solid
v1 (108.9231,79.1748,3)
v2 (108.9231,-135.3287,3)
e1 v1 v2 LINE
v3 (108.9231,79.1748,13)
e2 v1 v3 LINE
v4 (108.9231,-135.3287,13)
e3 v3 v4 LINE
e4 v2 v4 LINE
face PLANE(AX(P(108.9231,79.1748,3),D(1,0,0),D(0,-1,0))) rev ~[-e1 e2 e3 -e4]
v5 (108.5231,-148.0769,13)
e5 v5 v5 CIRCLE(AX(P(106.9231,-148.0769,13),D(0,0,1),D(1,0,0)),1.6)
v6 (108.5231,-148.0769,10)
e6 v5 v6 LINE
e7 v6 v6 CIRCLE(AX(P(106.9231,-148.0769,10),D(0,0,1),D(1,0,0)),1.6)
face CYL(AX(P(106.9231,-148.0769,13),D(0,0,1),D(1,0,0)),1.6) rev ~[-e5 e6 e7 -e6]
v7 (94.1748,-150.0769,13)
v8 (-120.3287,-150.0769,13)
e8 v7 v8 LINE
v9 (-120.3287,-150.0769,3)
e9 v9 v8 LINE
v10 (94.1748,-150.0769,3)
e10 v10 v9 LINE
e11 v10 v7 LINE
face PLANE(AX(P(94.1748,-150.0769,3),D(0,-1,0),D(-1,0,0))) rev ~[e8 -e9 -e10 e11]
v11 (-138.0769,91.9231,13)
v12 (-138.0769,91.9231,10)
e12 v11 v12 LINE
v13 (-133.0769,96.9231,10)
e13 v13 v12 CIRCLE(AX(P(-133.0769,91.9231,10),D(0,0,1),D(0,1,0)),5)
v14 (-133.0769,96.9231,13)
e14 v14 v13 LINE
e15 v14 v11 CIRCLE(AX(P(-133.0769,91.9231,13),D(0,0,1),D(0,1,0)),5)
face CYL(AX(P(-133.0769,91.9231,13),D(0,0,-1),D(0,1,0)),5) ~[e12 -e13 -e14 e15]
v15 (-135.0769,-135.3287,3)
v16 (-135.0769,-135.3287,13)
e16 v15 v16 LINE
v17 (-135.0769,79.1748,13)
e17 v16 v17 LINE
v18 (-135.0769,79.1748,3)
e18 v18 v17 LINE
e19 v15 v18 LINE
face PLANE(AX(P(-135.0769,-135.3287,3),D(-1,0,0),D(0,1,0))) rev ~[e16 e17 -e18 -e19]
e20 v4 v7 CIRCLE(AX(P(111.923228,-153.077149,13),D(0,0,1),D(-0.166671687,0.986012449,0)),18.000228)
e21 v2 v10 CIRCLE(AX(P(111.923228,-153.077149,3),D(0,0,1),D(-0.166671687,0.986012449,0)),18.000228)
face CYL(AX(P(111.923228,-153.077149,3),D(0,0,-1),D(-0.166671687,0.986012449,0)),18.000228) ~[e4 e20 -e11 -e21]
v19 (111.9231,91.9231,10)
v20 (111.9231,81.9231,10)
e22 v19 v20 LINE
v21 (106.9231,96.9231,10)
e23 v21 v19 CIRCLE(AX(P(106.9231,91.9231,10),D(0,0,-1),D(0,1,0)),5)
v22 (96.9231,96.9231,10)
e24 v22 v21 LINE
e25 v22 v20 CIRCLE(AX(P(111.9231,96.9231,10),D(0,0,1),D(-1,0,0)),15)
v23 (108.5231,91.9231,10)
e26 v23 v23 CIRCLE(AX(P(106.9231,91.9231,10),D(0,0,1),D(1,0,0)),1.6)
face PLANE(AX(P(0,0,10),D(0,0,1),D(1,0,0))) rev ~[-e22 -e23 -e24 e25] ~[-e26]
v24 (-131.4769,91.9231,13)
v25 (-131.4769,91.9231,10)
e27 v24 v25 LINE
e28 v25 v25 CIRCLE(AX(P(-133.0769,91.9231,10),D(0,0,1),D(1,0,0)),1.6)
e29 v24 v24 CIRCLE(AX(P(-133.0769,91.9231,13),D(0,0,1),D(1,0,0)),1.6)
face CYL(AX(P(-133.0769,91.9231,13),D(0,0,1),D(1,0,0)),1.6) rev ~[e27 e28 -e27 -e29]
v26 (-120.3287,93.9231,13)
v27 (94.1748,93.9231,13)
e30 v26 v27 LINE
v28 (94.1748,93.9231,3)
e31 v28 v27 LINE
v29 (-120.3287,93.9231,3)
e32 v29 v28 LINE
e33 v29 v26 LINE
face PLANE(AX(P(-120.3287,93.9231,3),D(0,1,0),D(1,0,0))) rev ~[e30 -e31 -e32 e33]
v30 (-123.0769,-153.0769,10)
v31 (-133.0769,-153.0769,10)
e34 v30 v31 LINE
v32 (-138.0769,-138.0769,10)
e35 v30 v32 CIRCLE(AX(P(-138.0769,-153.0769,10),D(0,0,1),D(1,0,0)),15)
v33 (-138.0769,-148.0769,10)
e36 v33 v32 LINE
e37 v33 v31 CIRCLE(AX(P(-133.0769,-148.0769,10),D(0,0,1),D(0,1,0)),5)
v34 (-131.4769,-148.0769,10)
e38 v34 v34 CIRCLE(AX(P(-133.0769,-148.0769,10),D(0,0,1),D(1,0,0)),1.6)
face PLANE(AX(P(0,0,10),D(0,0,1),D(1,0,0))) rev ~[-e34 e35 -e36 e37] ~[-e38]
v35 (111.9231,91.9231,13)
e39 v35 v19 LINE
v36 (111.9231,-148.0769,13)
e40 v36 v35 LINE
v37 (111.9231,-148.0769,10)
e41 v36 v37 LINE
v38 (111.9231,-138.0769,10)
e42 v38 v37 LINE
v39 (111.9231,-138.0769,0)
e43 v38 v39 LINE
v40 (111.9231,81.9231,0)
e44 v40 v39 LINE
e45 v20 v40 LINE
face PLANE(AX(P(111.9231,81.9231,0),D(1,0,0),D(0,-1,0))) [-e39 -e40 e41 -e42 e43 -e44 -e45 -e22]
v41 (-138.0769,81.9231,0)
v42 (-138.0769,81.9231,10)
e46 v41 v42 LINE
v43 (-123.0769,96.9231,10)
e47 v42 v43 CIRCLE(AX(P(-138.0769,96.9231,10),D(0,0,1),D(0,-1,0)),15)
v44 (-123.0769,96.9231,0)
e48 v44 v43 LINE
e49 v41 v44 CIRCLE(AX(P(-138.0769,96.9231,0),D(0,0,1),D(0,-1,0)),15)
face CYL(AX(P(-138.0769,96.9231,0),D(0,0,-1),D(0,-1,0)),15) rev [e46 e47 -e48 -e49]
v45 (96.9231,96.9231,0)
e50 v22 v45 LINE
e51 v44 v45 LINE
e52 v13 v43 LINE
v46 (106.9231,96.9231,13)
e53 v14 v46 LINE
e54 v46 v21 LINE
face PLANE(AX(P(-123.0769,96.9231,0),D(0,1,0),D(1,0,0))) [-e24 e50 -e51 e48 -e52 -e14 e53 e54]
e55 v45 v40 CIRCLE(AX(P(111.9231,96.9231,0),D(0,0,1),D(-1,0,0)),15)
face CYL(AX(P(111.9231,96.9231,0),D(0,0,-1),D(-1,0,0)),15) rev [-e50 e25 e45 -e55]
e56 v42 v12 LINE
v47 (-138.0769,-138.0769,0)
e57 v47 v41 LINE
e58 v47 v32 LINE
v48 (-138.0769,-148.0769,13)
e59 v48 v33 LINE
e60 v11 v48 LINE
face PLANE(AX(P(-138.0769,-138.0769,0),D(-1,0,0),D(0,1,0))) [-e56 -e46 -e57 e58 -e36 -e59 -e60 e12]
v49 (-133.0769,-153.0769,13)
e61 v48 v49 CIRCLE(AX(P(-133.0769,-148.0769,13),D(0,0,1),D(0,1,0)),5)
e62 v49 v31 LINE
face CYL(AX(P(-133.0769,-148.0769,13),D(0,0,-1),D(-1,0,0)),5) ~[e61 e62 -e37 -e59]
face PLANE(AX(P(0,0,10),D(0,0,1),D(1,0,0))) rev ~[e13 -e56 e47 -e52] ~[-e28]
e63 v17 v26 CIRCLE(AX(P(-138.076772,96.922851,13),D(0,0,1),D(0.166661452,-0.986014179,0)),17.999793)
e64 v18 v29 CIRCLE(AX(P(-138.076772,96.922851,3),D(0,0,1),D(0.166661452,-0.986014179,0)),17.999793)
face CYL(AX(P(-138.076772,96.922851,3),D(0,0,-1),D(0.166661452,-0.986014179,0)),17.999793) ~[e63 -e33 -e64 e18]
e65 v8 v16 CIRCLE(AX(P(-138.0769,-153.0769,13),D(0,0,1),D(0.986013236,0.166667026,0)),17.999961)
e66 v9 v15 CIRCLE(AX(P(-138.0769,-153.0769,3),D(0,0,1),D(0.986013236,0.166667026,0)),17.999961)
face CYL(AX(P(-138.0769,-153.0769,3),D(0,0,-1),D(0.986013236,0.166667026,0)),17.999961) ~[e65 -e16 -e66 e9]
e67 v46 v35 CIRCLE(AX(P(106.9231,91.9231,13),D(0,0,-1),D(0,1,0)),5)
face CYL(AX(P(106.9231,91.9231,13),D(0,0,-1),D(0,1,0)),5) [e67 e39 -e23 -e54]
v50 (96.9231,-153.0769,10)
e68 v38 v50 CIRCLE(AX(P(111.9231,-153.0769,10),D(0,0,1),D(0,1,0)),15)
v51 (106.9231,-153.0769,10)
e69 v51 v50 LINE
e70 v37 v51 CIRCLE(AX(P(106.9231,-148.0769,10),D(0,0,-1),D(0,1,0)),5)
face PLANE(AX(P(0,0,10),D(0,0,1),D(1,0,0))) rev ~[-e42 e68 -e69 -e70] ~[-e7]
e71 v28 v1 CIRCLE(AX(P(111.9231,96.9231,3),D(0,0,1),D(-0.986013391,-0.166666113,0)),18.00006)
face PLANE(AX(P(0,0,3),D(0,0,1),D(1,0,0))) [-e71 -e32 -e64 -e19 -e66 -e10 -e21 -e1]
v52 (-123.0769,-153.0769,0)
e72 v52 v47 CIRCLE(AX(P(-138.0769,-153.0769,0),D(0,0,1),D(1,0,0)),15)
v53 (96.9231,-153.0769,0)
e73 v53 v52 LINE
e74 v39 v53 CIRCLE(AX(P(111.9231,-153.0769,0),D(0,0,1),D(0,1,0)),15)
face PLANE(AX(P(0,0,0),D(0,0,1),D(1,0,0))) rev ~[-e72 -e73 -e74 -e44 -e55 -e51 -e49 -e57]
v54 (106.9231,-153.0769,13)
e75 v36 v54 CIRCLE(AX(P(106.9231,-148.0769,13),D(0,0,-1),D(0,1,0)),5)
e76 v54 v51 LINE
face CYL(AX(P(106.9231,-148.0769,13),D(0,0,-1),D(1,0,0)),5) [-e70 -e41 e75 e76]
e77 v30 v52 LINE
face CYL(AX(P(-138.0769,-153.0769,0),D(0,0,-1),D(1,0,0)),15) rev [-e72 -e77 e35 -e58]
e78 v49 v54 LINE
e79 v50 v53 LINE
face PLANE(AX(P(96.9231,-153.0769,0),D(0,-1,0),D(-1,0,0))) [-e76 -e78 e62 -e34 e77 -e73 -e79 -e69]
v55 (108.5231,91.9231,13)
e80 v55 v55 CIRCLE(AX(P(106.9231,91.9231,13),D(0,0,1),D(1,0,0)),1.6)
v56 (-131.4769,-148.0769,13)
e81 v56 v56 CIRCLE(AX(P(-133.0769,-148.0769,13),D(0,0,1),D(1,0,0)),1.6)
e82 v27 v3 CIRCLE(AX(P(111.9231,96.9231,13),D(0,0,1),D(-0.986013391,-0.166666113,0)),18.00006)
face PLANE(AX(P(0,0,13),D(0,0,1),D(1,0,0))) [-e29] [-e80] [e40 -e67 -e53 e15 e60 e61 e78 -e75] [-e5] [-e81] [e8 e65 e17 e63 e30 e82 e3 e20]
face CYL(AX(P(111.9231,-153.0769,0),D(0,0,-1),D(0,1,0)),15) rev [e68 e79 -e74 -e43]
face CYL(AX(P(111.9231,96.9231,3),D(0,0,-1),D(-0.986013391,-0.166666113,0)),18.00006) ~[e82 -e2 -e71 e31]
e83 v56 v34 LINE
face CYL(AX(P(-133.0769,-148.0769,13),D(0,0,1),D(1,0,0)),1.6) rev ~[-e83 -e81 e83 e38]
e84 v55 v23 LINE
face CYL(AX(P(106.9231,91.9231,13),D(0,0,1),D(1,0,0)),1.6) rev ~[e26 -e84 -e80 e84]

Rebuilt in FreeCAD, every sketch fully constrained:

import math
import FreeCAD as App
import Part
import Sketcher

V = App.Vector
Q = App.Units.Quantity


def edges_at(feature, points):
    """Names of the edges that pass closest to the given points."""
    edges = feature.Shape.Edges
    near = lambda p: min(range(len(edges)), key=lambda i: edges[i].distToShape(Part.Vertex(*p))[0])
    return sorted({f"Edge{near(p) + 1}" for p in points})

doc = App.newDocument("Part")
body = doc.addObject("PartDesign::Body", "Body")

sketch1 = body.newObject("Sketcher::SketchObject", "Sketch")
sketch1.AttachmentSupport = (doc.getObject("XY_Plane"), [""])
sketch1.MapMode = "FlatFace"
sketch1.addGeometry([
    Part.LineSegment(V(97, 97, 0), V(-123, 97, 0)),
    Part.ArcOfCircle(Part.Circle(V(-138, 97, 0), V(0, 0, 1), 15), math.radians(-90), math.radians(0)),
    Part.LineSegment(V(-138, 82, 0), V(-138, -138, 0)),
    Part.ArcOfCircle(Part.Circle(V(-138, -153, 0), V(0, 0, 1), 15), math.radians(0), math.radians(90)),
    Part.LineSegment(V(-123, -153, 0), V(97, -153, 0)),
    Part.ArcOfCircle(Part.Circle(V(112, -153, 0), V(0, 0, 1), 15), math.radians(90), math.radians(180)),
    Part.LineSegment(V(112, -138, 0), V(112, 82, 0)),
    Part.ArcOfCircle(Part.Circle(V(112, 97, 0), V(0, 0, 1), 15), math.radians(180), math.radians(270)),
], False)
sketch1.addConstraint([
    Sketcher.Constraint("Coincident", 0, 2, 1, 2),
    Sketcher.Constraint("Coincident", 1, 1, 2, 1),
    Sketcher.Constraint("Coincident", 2, 2, 3, 2),
    Sketcher.Constraint("Coincident", 3, 1, 4, 1),
    Sketcher.Constraint("Coincident", 4, 2, 5, 2),
    Sketcher.Constraint("Coincident", 5, 1, 6, 1),
    Sketcher.Constraint("Coincident", 6, 2, 7, 2),
    Sketcher.Constraint("Coincident", 7, 1, 0, 1),
    Sketcher.Constraint("Horizontal", 0),
    Sketcher.Constraint("Vertical", 2),
    Sketcher.Constraint("Horizontal", 4),
    Sketcher.Constraint("Vertical", 6),
    Sketcher.Constraint("Equal", 1, 3),
    Sketcher.Constraint("Equal", 3, 5),
    Sketcher.Constraint("Equal", 5, 7),
    Sketcher.Constraint("Horizontal", 3, 3, 5, 3),
    Sketcher.Constraint("Horizontal", 1, 3, 7, 3),
    Sketcher.Constraint("Horizontal", 7, 3, 0, 2),
    Sketcher.Constraint("Horizontal", 5, 3, 3, 1),
    Sketcher.Constraint("Vertical", 1, 3, 3, 3),
    Sketcher.Constraint("Vertical", 5, 3, 7, 3),
    Sketcher.Constraint("Vertical", 3, 3, 1, 1),
    Sketcher.Constraint("Vertical", 7, 3, 5, 1),
    Sketcher.Constraint("Equal", 4, 2),
    Sketcher.Constraint("Radius", 1, Q("15 mm")),
    Sketcher.Constraint("DistanceY", 3, 3, 1, 3, Q("250 mm")),
    Sketcher.Constraint("DistanceX", 1, 3, -1, 1, Q("138.077 mm")),
    Sketcher.Constraint("DistanceY", -1, 1, 1, 3, Q("96.923 mm")),
])
pad1 = body.newObject("PartDesign::Pad", "Pad")
pad1.Profile = sketch1
pad1.Length = 3

sketch2 = body.newObject("Sketcher::SketchObject", "Sketch001")
sketch2.AttachmentSupport = (doc.getObject("XY_Plane"), [""])
sketch2.MapMode = "FlatFace"
sketch2.AttachmentOffset = App.Placement(V(0, 0, 3), App.Rotation())
sketch2.addGeometry([
    Part.ArcOfCircle(Part.Circle(V(-138, -153, 0), V(0, 0, 1), 15), math.radians(0), math.radians(90)),
    Part.LineSegment(V(-123, -153, 0), V(97, -153, 0)),
    Part.ArcOfCircle(Part.Circle(V(112, -153, 0), V(0, 0, 1), 15), math.radians(90), math.radians(180)),
    Part.LineSegment(V(112, -138, 0), V(112, 82, 0)),
    Part.ArcOfCircle(Part.Circle(V(112, 97, 0), V(0, 0, 1), 15), math.radians(180), math.radians(270)),
    Part.LineSegment(V(97, 97, 0), V(-123, 97, 0)),
    Part.ArcOfCircle(Part.Circle(V(-138, 97, 0), V(0, 0, 1), 15), math.radians(-90), math.radians(0)),
    Part.LineSegment(V(-138, 82, 0), V(-138, -138, 0)),
    Part.ArcOfCircle(Part.Circle(V(-138, 97, 0), V(0, 0, 1), 18), math.radians(-80), math.radians(-10)),
    Part.LineSegment(V(-120, 94, 0), V(94, 94, 0)),
    Part.ArcOfCircle(Part.Circle(V(112, 97, 0), V(0, 0, 1), 18), math.radians(-170), math.radians(-100)),
    Part.LineSegment(V(109, 79, 0), V(109, -135, 0)),
    Part.ArcOfCircle(Part.Circle(V(112, -153, 0), V(0, 0, 1), 18), math.radians(100), math.radians(170)),
    Part.LineSegment(V(94, -150, 0), V(-120, -150, 0)),
    Part.ArcOfCircle(Part.Circle(V(-138, -153, 0), V(0, 0, 1), 18), math.radians(10), math.radians(80)),
    Part.LineSegment(V(-135, -135, 0), V(-135, 79, 0)),
], False)
sketch2.addConstraint([
    Sketcher.Constraint("Coincident", 0, 1, 1, 1),
    Sketcher.Constraint("Coincident", 1, 2, 2, 2),
    Sketcher.Constraint("Coincident", 2, 1, 3, 1),
    Sketcher.Constraint("Coincident", 3, 2, 4, 2),
    Sketcher.Constraint("Coincident", 4, 1, 5, 1),
    Sketcher.Constraint("Coincident", 5, 2, 6, 2),
    Sketcher.Constraint("Coincident", 6, 1, 7, 1),
    Sketcher.Constraint("Coincident", 7, 2, 0, 2),
    Sketcher.Constraint("Coincident", 8, 2, 9, 1),
    Sketcher.Constraint("Coincident", 9, 2, 10, 1),
    Sketcher.Constraint("Coincident", 10, 2, 11, 1),
    Sketcher.Constraint("Coincident", 11, 2, 12, 1),
    Sketcher.Constraint("Coincident", 12, 2, 13, 1),
    Sketcher.Constraint("Coincident", 13, 2, 14, 1),
    Sketcher.Constraint("Coincident", 14, 2, 15, 1),
    Sketcher.Constraint("Coincident", 15, 2, 8, 1),
    Sketcher.Constraint("Horizontal", 1),
    Sketcher.Constraint("Vertical", 3),
    Sketcher.Constraint("Horizontal", 5),
    Sketcher.Constraint("Vertical", 7),
    Sketcher.Constraint("Horizontal", 9),
    Sketcher.Constraint("Vertical", 11),
    Sketcher.Constraint("Horizontal", 13),
    Sketcher.Constraint("Vertical", 15),
    Sketcher.Constraint("Coincident", 8, 3, 6, 3),
    Sketcher.Constraint("Coincident", 10, 3, 4, 3),
    Sketcher.Constraint("Coincident", 12, 3, 2, 3),
    Sketcher.Constraint("Coincident", 14, 3, 0, 3),
    Sketcher.Constraint("Equal", 0, 2),
    Sketcher.Constraint("Equal", 2, 4),
    Sketcher.Constraint("Equal", 4, 6),
    Sketcher.Constraint("Equal", 8, 10),
    Sketcher.Constraint("Equal", 10, 12),
    Sketcher.Constraint("Equal", 12, 14),
    Sketcher.Constraint("Horizontal", 0, 3, 2, 3),
    Sketcher.Constraint("Horizontal", 4, 3, 6, 3),
    Sketcher.Constraint("Horizontal", 14, 3, 0, 1),
    Sketcher.Constraint("Horizontal", 10, 3, 4, 1),
    Sketcher.Constraint("Horizontal", 11, 2, 14, 2),
    Sketcher.Constraint("Horizontal", 10, 2, 15, 2),
    Sketcher.Constraint("Vertical", 2, 3, 4, 3),
    Sketcher.Constraint("Vertical", 12, 3, 2, 1),
    Sketcher.Constraint("Vertical", 14, 3, 6, 1),
    Sketcher.Constraint("Vertical", 9, 2, 12, 2),
    Sketcher.Constraint("Equal", 5, 3),
    Sketcher.Constraint("Equal", 13, 11),
    Sketcher.Constraint("Radius", 0, Q("15 mm")),
    Sketcher.Constraint("Radius", 8, Q("18 mm")),
    Sketcher.Constraint("DistanceY", 8, 2, 5, 2, Q("3 mm")),
    Sketcher.Constraint("DistanceX", 1, 1, 1, 2, Q("220 mm")),
    Sketcher.Constraint("DistanceX", 0, 3, -1, 1, Q("138.077 mm")),
    Sketcher.Constraint("DistanceY", 0, 3, -1, 1, Q("153.077 mm")),
])
pad2 = body.newObject("PartDesign::Pad", "Pad001")
pad2.Profile = sketch2
pad2.Length = 10

sketch3 = body.newObject("Sketcher::SketchObject", "Sketch002")
sketch3.AttachmentSupport = (doc.getObject("XY_Plane"), [""])
sketch3.MapMode = "FlatFace"
sketch3.AttachmentOffset = App.Placement(V(0, 0, 13), App.Rotation())
sketch3.addGeometry([
    Part.LineSegment(V(112, 97, 0), V(97, 97, 0)),
    Part.ArcOfCircle(Part.Circle(V(112, 97, 0), V(0, 0, 1), 15), math.radians(180), math.radians(270)),
    Part.LineSegment(V(112, 82, 0), V(112, 97, 0)),
    Part.ArcOfCircle(Part.Circle(V(-138, 97, 0), V(0, 0, 1), 15), math.radians(-90), math.radians(0)),
    Part.LineSegment(V(-123, 97, 0), V(-138, 97, 0)),
    Part.LineSegment(V(-138, 97, 0), V(-138, 82, 0)),
    Part.LineSegment(V(112, -153, 0), V(112, -138, 0)),
    Part.ArcOfCircle(Part.Circle(V(112, -153, 0), V(0, 0, 1), 15), math.radians(90), math.radians(180)),
    Part.LineSegment(V(97, -153, 0), V(112, -153, 0)),
    Part.ArcOfCircle(Part.Circle(V(-138, -153, 0), V(0, 0, 1), 15), math.radians(0), math.radians(90)),
    Part.LineSegment(V(-138, -138, 0), V(-138, -153, 0)),
    Part.LineSegment(V(-138, -153, 0), V(-123, -153, 0)),
], False)
sketch3.addConstraint([
    Sketcher.Constraint("Coincident", 0, 2, 1, 1),
    Sketcher.Constraint("Coincident", 1, 2, 2, 1),
    Sketcher.Constraint("Coincident", 2, 2, 0, 1),
    Sketcher.Constraint("Coincident", 3, 2, 4, 1),
    Sketcher.Constraint("Coincident", 4, 2, 5, 1),
    Sketcher.Constraint("Coincident", 5, 2, 3, 1),
    Sketcher.Constraint("Coincident", 6, 2, 7, 1),
    Sketcher.Constraint("Coincident", 7, 2, 8, 1),
    Sketcher.Constraint("Coincident", 8, 2, 6, 1),
    Sketcher.Constraint("Coincident", 9, 2, 10, 1),
    Sketcher.Constraint("Coincident", 10, 2, 11, 1),
    Sketcher.Constraint("Coincident", 11, 2, 9, 1),
    Sketcher.Constraint("Horizontal", 0),
    Sketcher.Constraint("Vertical", 2),
    Sketcher.Constraint("Horizontal", 4),
    Sketcher.Constraint("Vertical", 5),
    Sketcher.Constraint("Vertical", 6),
    Sketcher.Constraint("Horizontal", 8),
    Sketcher.Constraint("Vertical", 10),
    Sketcher.Constraint("Horizontal", 11),
    Sketcher.Constraint("Coincident", 2, 2, 1, 3),
    Sketcher.Constraint("Coincident", 4, 2, 3, 3),
    Sketcher.Constraint("Coincident", 8, 2, 7, 3),
    Sketcher.Constraint("Coincident", 10, 2, 9, 3),
    Sketcher.Constraint("Equal", 1, 3),
    Sketcher.Constraint("Equal", 3, 7),
    Sketcher.Constraint("Equal", 7, 9),
    Sketcher.Constraint("Horizontal", 1, 3, 3, 3),
    Sketcher.Constraint("Horizontal", 7, 3, 9, 3),
    Sketcher.Constraint("Vertical", 1, 3, 7, 3),
    Sketcher.Constraint("Vertical", 3, 3, 9, 3),
    Sketcher.Constraint("Radius", 1, Q("15 mm")),
    Sketcher.Constraint("DistanceX", 3, 3, 1, 3, Q("250 mm")),
    Sketcher.Constraint("DistanceY", 7, 3, 1, 3, Q("250 mm")),
    Sketcher.Constraint("DistanceX", -1, 1, 1, 3, Q("111.923 mm")),
    Sketcher.Constraint("DistanceY", -1, 1, 1, 3, Q("96.923 mm")),
])
pad3 = body.newObject("PartDesign::Pad", "Pad002")
pad3.Profile = sketch3
pad3.Length = 3
pad3.Reversed = True
doc.recompute()

fillet = body.newObject("PartDesign::Fillet", "Fillet")
fillet.Base = (pad3, edges_at(pad3, [
    (111.923, -153.077, 11.5),
    (-138.077, -153.077, 11.5),
    (111.923, 96.923, 11.5),
    (-138.077, 96.923, 11.5),
]))
fillet.Radius = 5

sketch4 = body.newObject("Sketcher::SketchObject", "Sketch003")
sketch4.AttachmentSupport = (doc.getObject("XY_Plane"), [""])
sketch4.MapMode = "FlatFace"
sketch4.AttachmentOffset = App.Placement(V(0, 0, 13), App.Rotation())
sketch4.addGeometry([
    Part.Circle(V(-133.1, 91.9, 0), V(0, 0, 1), 1.6),
    Part.Circle(V(-133.1, -148.1, 0), V(0, 0, 1), 1.6),
    Part.Circle(V(106.9, 91.9, 0), V(0, 0, 1), 1.6),
    Part.Circle(V(106.9, -148.1, 0), V(0, 0, 1), 1.6),
], False)
sketch4.addConstraint([
    Sketcher.Constraint("Equal", 0, 1),
    Sketcher.Constraint("Equal", 1, 2),
    Sketcher.Constraint("Equal", 2, 3),
    Sketcher.Constraint("Horizontal", 0, 3, 2, 3),
    Sketcher.Constraint("Horizontal", 1, 3, 3, 3),
    Sketcher.Constraint("Vertical", 0, 3, 1, 3),
    Sketcher.Constraint("Vertical", 2, 3, 3, 3),
    Sketcher.Constraint("Diameter", 0, Q("3.2 mm")),
    Sketcher.Constraint("DistanceY", 1, 3, 0, 3, Q("240 mm")),
    Sketcher.Constraint("DistanceX", 0, 3, 2, 3, Q("240 mm")),
    Sketcher.Constraint("DistanceX", 0, 3, -1, 1, Q("133.077 mm")),
    Sketcher.Constraint("DistanceY", -1, 1, 0, 3, Q("91.923 mm")),
])
pocket1 = body.newObject("PartDesign::Pocket", "Pocket")
pocket1.Profile = sketch4
pocket1.Length = 3

doc.recompute()
